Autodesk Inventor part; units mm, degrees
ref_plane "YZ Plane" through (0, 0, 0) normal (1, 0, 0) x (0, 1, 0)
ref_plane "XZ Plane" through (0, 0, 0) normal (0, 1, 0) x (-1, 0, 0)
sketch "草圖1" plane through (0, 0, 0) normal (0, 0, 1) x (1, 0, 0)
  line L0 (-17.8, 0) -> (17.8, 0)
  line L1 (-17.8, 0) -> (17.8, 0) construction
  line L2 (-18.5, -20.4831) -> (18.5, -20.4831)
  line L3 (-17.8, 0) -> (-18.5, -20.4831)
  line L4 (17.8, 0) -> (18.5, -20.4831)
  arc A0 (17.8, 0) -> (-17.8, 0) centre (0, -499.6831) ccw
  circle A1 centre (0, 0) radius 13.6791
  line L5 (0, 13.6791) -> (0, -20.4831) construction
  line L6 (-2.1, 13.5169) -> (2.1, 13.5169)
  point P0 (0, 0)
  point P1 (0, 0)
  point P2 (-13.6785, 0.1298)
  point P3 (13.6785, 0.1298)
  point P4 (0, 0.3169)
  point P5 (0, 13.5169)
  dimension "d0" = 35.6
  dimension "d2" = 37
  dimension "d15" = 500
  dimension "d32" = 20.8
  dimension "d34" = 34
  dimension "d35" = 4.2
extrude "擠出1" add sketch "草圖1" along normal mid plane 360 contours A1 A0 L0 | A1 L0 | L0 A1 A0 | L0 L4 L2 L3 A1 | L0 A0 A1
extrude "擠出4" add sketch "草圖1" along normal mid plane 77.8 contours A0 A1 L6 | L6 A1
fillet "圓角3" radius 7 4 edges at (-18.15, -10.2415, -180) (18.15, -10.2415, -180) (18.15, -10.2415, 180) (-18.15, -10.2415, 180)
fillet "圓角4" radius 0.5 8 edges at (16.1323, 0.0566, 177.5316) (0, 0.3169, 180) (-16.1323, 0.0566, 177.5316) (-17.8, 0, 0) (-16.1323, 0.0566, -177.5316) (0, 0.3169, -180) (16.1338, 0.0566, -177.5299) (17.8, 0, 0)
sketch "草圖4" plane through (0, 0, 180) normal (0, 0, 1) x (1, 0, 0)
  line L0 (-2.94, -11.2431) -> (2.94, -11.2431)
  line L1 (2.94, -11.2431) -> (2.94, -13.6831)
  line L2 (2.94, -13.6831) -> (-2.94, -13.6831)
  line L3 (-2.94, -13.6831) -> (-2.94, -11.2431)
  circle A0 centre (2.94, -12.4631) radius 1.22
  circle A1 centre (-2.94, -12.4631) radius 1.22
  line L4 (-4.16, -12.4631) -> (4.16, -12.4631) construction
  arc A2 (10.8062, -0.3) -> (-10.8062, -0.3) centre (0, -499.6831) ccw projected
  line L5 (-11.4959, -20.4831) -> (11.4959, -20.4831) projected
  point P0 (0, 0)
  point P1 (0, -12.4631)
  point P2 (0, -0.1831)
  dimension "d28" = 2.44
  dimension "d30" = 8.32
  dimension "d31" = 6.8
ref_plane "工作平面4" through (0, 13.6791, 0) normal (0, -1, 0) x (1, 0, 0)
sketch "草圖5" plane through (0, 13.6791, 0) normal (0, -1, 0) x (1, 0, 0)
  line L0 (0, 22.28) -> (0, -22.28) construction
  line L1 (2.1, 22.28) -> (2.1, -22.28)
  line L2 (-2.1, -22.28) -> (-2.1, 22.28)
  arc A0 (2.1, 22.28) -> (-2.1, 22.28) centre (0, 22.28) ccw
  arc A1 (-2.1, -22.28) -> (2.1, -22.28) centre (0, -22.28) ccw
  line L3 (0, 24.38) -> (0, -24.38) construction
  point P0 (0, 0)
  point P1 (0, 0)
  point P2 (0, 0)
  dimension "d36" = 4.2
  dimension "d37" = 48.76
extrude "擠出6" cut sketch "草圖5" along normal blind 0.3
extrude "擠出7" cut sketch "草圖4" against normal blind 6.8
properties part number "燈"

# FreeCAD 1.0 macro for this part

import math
import FreeCAD as App
import Part
import Sketcher
from FreeCAD import Vector


def edges_at(feature, points):
    """Names of the edges that pass closest to the given points."""
    edges = feature.Shape.Edges
    near = lambda p: min(range(len(edges)), key=lambda i: edges[i].distToShape(Part.Vertex(*p))[0])
    return sorted({f"Edge{near(p) + 1}" for p in points})

doc = App.newDocument("Part")
body = doc.addObject("PartDesign::Body", "Body")

# Sketch on XY plane
sketch1 = body.newObject("Sketcher::SketchObject", "Sketch")
sketch1.AttachmentSupport = (doc.getObject("XY_Plane"), [""])
sketch1.MapMode = "FlatFace"
sketch1.addGeometry(Part.ArcOfCircle(Part.Circle(Vector(0, -500, 0), Vector(0, 0, 1), 500), math.radians(87.96), math.radians(92.04)), False)
sketch1.addGeometry(Part.LineSegment(Vector(-18, 0, 0), Vector(-18, -20, 0)), False)
sketch1.addGeometry(Part.LineSegment(Vector(-18, -20, 0), Vector(18, -20, 0)), False)
sketch1.addGeometry(Part.LineSegment(Vector(18, -20, 0), Vector(18, 0, 0)), False)
sketch1.addConstraint(Sketcher.Constraint("Coincident", 0, 2, 1, 1))
sketch1.addConstraint(Sketcher.Constraint("Coincident", 1, 2, 2, 1))
sketch1.addConstraint(Sketcher.Constraint("Coincident", 2, 2, 3, 1))
sketch1.addConstraint(Sketcher.Constraint("Coincident", 3, 2, 0, 1))
sketch1.addConstraint(Sketcher.Constraint("Horizontal", 2))
sketch1.addConstraint(Sketcher.Constraint("Symmetric", 0, 2, 3, 2, -1, 1))
sketch1.addConstraint(Sketcher.Constraint("PointOnObject", 0, 3, -2))
sketch1.addConstraint(Sketcher.Constraint("Equal", 1, 3))
sketch1.addConstraint(Sketcher.Constraint("Radius", 0, 500.0))
sketch1.addConstraint(Sketcher.Constraint("DistanceX", 2, 1, 2, 2, 37.0))
sketch1.addConstraint(Sketcher.Constraint("DistanceX", 0, 2, 3, 2, 35.6))
sketch1.addConstraint(Sketcher.Constraint("DistanceY", 0, 3, 1, 2, 479.2))
pad1 = body.newObject("PartDesign::Pad", "Pad")
pad1.Profile = sketch1
pad1.Length = 360
pad1.Midplane = True

# Sketch on XY plane
sketch2 = body.newObject("Sketcher::SketchObject", "Sketch001")
sketch2.AttachmentSupport = (doc.getObject("XY_Plane"), [""])
sketch2.MapMode = "FlatFace"
sketch2.addGeometry(Part.ArcOfCircle(Part.Circle(Vector(0, -500, 0), Vector(0, 0, 1), 500), math.radians(88.43), math.radians(91.57)), False)
sketch2.addGeometry(Part.ArcOfCircle(Part.Circle(Vector(0, 0, 0), Vector(0, 0, 1), 14), math.radians(1), math.radians(179)), False)
sketch2.addConstraint(Sketcher.Constraint("Coincident", 0, 1, 1, 1))
sketch2.addConstraint(Sketcher.Constraint("Coincident", 1, 2, 0, 2))
sketch2.addConstraint(Sketcher.Constraint("Coincident", 1, 3, -1, 1))
sketch2.addConstraint(Sketcher.Constraint("PointOnObject", 0, 3, -2))
sketch2.addConstraint(Sketcher.Constraint("Radius", 0, 500.0))
sketch2.addConstraint(Sketcher.Constraint("Radius", 1, 13.679))
sketch2.addConstraint(Sketcher.Constraint("DistanceY", 0, 3, -1, 1, 499.683))
pad2 = body.newObject("PartDesign::Pad", "Pad001")
pad2.Profile = sketch2
pad2.Length = 77.8
pad2.Midplane = True
doc.recompute()

fillet = body.newObject("PartDesign::Fillet", "Fillet")
fillet.Base = (pad2, edges_at(pad2, [
    (-18.15, -10.242, -180),
    (18.15, -10.242, -180),
    (18.15, -10.242, 180),
    (-18.15, -10.242, 180),
]))
fillet.Radius = 7
doc.recompute()

fillet2 = body.newObject("PartDesign::Fillet", "Fillet001")
fillet2.Base = (fillet, edges_at(fillet, [
    (16.132, 0.057, 177.532),
    (0, 0.317, 180),
    (-16.132, 0.057, 177.532),
    (-17.8, 0, 0),
    (-16.132, 0.057, -177.532),
    (0, 0.317, -180),
    (16.134, 0.057, -177.53),
    (17.8, 0, 0),
]))
fillet2.Radius = 0.5

# Sketch on XZ plane
sketch3 = body.newObject("Sketcher::SketchObject", "Sketch002")
sketch3.AttachmentSupport = (doc.getObject("XZ_Plane"), [""])
sketch3.MapMode = "FlatFace"
sketch3.AttachmentOffset = App.Placement(Vector(0, 0, -13.6791), App.Rotation())
sketch3.addGeometry(Part.LineSegment(Vector(2.1, -22.3, 0), Vector(2.1, 22.3, 0)), False)
sketch3.addGeometry(Part.ArcOfCircle(Part.Circle(Vector(0, 22.3, 0), Vector(0, 0, 1), 2.1), math.radians(0), math.radians(180)), False)
sketch3.addGeometry(Part.LineSegment(Vector(-2.1, 22.3, 0), Vector(-2.1, -22.3, 0)), False)
sketch3.addGeometry(Part.ArcOfCircle(Part.Circle(Vector(0, -22.3, 0), Vector(0, 0, 1), 2.1), math.radians(180), math.radians(360)), False)
sketch3.addConstraint(Sketcher.Constraint("Tangent", 0, 2, 1, 1))
sketch3.addConstraint(Sketcher.Constraint("Tangent", 1, 2, 2, 1))
sketch3.addConstraint(Sketcher.Constraint("Tangent", 2, 2, 3, 1))
sketch3.addConstraint(Sketcher.Constraint("Tangent", 3, 2, 0, 1))
sketch3.addConstraint(Sketcher.Constraint("Vertical", 0))
sketch3.addConstraint(Sketcher.Constraint("Vertical", 2))
sketch3.addConstraint(Sketcher.Constraint("Symmetric", 1, 3, 3, 3, -1, 1))
sketch3.addConstraint(Sketcher.Constraint("Radius", 1, 2.1))
sketch3.addConstraint(Sketcher.Constraint("DistanceY", 0, 1, 0, 2, 44.56))
pocket1 = body.newObject("PartDesign::Pocket", "Pocket")
pocket1.Profile = sketch3
pocket1.Length = 0.3
pocket1.Reversed = True

# Sketch on XY plane
sketch4 = body.newObject("Sketcher::SketchObject", "Sketch003")
sketch4.AttachmentSupport = (doc.getObject("XY_Plane"), [""])
sketch4.MapMode = "FlatFace"
sketch4.AttachmentOffset = App.Placement(Vector(0, 0, 180), App.Rotation())
sketch4.addGeometry(Part.LineSegment(Vector(2.9, -11.2, 0), Vector(-2.9, -11.2, 0)), False)
sketch4.addGeometry(Part.ArcOfCircle(Part.Circle(Vector(-2.9, -12.5, 0), Vector(0, 0, 1), 1.2), math.radians(90), math.radians(270)), False)
sketch4.addGeometry(Part.LineSegment(Vector(-2.9, -13.7, 0), Vector(2.9, -13.7, 0)), False)
sketch4.addGeometry(Part.ArcOfCircle(Part.Circle(Vector(2.9, -12.5, 0), Vector(0, 0, 1), 1.2), math.radians(-90), math.radians(90)), False)
sketch4.addConstraint(Sketcher.Constraint("Tangent", 0, 2, 1, 1))
sketch4.addConstraint(Sketcher.Constraint("Tangent", 1, 2, 2, 1))
sketch4.addConstraint(Sketcher.Constraint("Tangent", 2, 2, 3, 1))
sketch4.addConstraint(Sketcher.Constraint("Tangent", 3, 2, 0, 1))
sketch4.addConstraint(Sketcher.Constraint("Horizontal", 0))
sketch4.addConstraint(Sketcher.Constraint("Horizontal", 2))
sketch4.addConstraint(Sketcher.Constraint("Radius", 1, 1.22))
sketch4.addConstraint(Sketcher.Constraint("DistanceX", 0, 2, 0, 1, 5.88))
sketch4.addConstraint(Sketcher.Constraint("DistanceX", 1, 3, -1, 1, 2.94))
sketch4.addConstraint(Sketcher.Constraint("DistanceY", 1, 3, -1, 1, 12.463))
pocket2 = body.newObject("PartDesign::Pocket", "Pocket001")
pocket2.Profile = sketch4
pocket2.Length = 6.8

doc.recompute()
